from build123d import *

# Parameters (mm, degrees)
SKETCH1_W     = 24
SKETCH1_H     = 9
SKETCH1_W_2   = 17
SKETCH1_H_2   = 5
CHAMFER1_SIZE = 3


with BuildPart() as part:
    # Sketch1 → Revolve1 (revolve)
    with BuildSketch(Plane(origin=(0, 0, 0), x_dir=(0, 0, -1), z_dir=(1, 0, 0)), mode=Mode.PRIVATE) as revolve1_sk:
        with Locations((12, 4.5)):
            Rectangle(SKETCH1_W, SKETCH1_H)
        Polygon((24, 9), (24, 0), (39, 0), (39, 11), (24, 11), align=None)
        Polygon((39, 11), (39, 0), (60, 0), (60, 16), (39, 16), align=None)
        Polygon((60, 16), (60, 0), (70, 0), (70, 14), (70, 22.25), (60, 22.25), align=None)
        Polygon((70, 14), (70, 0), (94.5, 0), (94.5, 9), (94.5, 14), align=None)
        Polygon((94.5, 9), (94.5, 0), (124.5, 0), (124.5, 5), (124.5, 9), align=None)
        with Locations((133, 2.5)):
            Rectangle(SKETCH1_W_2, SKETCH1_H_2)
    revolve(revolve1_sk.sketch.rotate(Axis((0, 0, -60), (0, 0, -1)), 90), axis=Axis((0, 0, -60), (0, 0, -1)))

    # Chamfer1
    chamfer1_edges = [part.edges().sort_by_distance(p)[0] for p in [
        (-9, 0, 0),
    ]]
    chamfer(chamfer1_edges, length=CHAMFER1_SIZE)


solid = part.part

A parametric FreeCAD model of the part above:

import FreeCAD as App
import Part
import Sketcher


def edges_at(feature, points):
    """Names of the edges that pass closest to the given points."""
    edges = feature.Shape.Edges
    near = lambda p: min(range(len(edges)), key=lambda i: edges[i].distToShape(Part.Vertex(*p))[0])
    return sorted({f"Edge{near(p) + 1}" for p in points})

doc = App.newDocument("Part")
body = doc.addObject("PartDesign::Body", "Body")

# Sketch on YZ plane
sketch1 = body.newObject("Sketcher::SketchObject", "Sketch")
sketch1.AttachmentSupport = (doc.getObject("YZ_Plane"), [""])
sketch1.MapMode = "FlatFace"
sketch1.addGeometry(Part.LineSegment(App.Vector(9, 0, 0), App.Vector(0, 0, 0)), False)
sketch1.addGeometry(Part.LineSegment(App.Vector(0, 0, 0), App.Vector(0, -141.5, 0)), False)
sketch1.addGeometry(Part.LineSegment(App.Vector(0, -141.5, 0), App.Vector(5, -141.5, 0)), False)
sketch1.addGeometry(Part.LineSegment(App.Vector(5, -141.5, 0), App.Vector(5, -124.5, 0)), False)
sketch1.addGeometry(Part.LineSegment(App.Vector(5, -124.5, 0), App.Vector(9, -124.5, 0)), False)
sketch1.addGeometry(Part.LineSegment(App.Vector(9, -124.5, 0), App.Vector(9, -94.5, 0)), False)
sketch1.addGeometry(Part.LineSegment(App.Vector(9, -94.5, 0), App.Vector(14, -94.5, 0)), False)
sketch1.addGeometry(Part.LineSegment(App.Vector(14, -94.5, 0), App.Vector(14, -70, 0)), False)
sketch1.addGeometry(Part.LineSegment(App.Vector(14, -70, 0), App.Vector(22.2, -70, 0)), False)
sketch1.addGeometry(Part.LineSegment(App.Vector(22.2, -70, 0), App.Vector(22.2, -60, 0)), False)
sketch1.addGeometry(Part.LineSegment(App.Vector(22.2, -60, 0), App.Vector(16, -60, 0)), False)
sketch1.addGeometry(Part.LineSegment(App.Vector(16, -60, 0), App.Vector(16, -39, 0)), False)
sketch1.addGeometry(Part.LineSegment(App.Vector(16, -39, 0), App.Vector(11, -39, 0)), False)
sketch1.addGeometry(Part.LineSegment(App.Vector(11, -39, 0), App.Vector(11, -24, 0)), False)
sketch1.addGeometry(Part.LineSegment(App.Vector(11, -24, 0), App.Vector(9, -24, 0)), False)
sketch1.addGeometry(Part.LineSegment(App.Vector(9, -24, 0), App.Vector(9, 0, 0)), False)
sketch1.addConstraint(Sketcher.Constraint("Coincident", 0, 2, 1, 1))
sketch1.addConstraint(Sketcher.Constraint("Coincident", 1, 2, 2, 1))
sketch1.addConstraint(Sketcher.Constraint("Coincident", 2, 2, 3, 1))
sketch1.addConstraint(Sketcher.Constraint("Coincident", 3, 2, 4, 1))
sketch1.addConstraint(Sketcher.Constraint("Coincident", 4, 2, 5, 1))
sketch1.addConstraint(Sketcher.Constraint("Coincident", 5, 2, 6, 1))
sketch1.addConstraint(Sketcher.Constraint("Coincident", 6, 2, 7, 1))
sketch1.addConstraint(Sketcher.Constraint("Coincident", 7, 2, 8, 1))
sketch1.addConstraint(Sketcher.Constraint("Coincident", 8, 2, 9, 1))
sketch1.addConstraint(Sketcher.Constraint("Coincident", 9, 2, 10, 1))
sketch1.addConstraint(Sketcher.Constraint("Coincident", 10, 2, 11, 1))
sketch1.addConstraint(Sketcher.Constraint("Coincident", 11, 2, 12, 1))
sketch1.addConstraint(Sketcher.Constraint("Coincident", 12, 2, 13, 1))
sketch1.addConstraint(Sketcher.Constraint("Coincident", 13, 2, 14, 1))
sketch1.addConstraint(Sketcher.Constraint("Coincident", 14, 2, 15, 1))
sketch1.addConstraint(Sketcher.Constraint("Coincident", 15, 2, 0, 1))
sketch1.addConstraint(Sketcher.Constraint("Horizontal", 0))
sketch1.addConstraint(Sketcher.Constraint("Vertical", 1))
sketch1.addConstraint(Sketcher.Constraint("Horizontal", 2))
sketch1.addConstraint(Sketcher.Constraint("Vertical", 3))
sketch1.addConstraint(Sketcher.Constraint("Horizontal", 4))
sketch1.addConstraint(Sketcher.Constraint("Vertical", 5))
sketch1.addConstraint(Sketcher.Constraint("Horizontal", 6))
sketch1.addConstraint(Sketcher.Constraint("Vertical", 7))
sketch1.addConstraint(Sketcher.Constraint("Horizontal", 8))
sketch1.addConstraint(Sketcher.Constraint("Vertical", 9))
sketch1.addConstraint(Sketcher.Constraint("Horizontal", 10))
sketch1.addConstraint(Sketcher.Constraint("Vertical", 11))
sketch1.addConstraint(Sketcher.Constraint("Horizontal", 12))
sketch1.addConstraint(Sketcher.Constraint("Vertical", 13))
sketch1.addConstraint(Sketcher.Constraint("Horizontal", 14))
sketch1.addConstraint(Sketcher.Constraint("Vertical", 15))
sketch1.addConstraint(Sketcher.Constraint("Coincident", 0, 2, -1, 1))
sketch1.addConstraint(Sketcher.Constraint("Vertical", 5, 2, 14, 2))
sketch1.addConstraint(Sketcher.Constraint("Equal", 2, 6))
sketch1.addConstraint(Sketcher.Constraint("Equal", 6, 12))
sketch1.addConstraint(Sketcher.Constraint("DistanceX", 0, 2, 0, 1, 9.0))
sketch1.addConstraint(Sketcher.Constraint("DistanceX", 2, 1, 2, 2, 5.0))
sketch1.addConstraint(Sketcher.Constraint("DistanceX", 14, 2, 14, 1, 2.0))
sketch1.addConstraint(Sketcher.Constraint("DistanceY", 3, 1, 3, 2, 17.0))
sketch1.addConstraint(Sketcher.Constraint("DistanceY", 5, 1, 5, 2, 30.0))
sketch1.addConstraint(Sketcher.Constraint("DistanceY", 9, 1, 9, 2, 10.0))
sketch1.addConstraint(Sketcher.Constraint("DistanceY", 11, 1, 11, 2, 21.0))
sketch1.addConstraint(Sketcher.Constraint("DistanceY", 13, 1, 13, 2, 15.0))
sketch1.addConstraint(Sketcher.Constraint("DistanceY", 15, 1, 15, 2, 24.0))
sketch1.addConstraint(Sketcher.Constraint("DistanceY", 1, 2, 1, 1, 141.5))
sketch1.addConstraint(Sketcher.Constraint("DistanceX", 8, 1, 8, 2, 8.25))
revolution = body.newObject("PartDesign::Revolution", "Revolution")
revolution.Profile = sketch1
revolution.ReferenceAxis = (sketch1, ["V_Axis"])
revolution.Angle = 360
doc.recompute()

chamfer = body.newObject("PartDesign::Chamfer", "Chamfer")
chamfer.Base = (revolution, edges_at(revolution, [(-9, 0, 0)]))
chamfer.Size = 3

doc.recompute()
